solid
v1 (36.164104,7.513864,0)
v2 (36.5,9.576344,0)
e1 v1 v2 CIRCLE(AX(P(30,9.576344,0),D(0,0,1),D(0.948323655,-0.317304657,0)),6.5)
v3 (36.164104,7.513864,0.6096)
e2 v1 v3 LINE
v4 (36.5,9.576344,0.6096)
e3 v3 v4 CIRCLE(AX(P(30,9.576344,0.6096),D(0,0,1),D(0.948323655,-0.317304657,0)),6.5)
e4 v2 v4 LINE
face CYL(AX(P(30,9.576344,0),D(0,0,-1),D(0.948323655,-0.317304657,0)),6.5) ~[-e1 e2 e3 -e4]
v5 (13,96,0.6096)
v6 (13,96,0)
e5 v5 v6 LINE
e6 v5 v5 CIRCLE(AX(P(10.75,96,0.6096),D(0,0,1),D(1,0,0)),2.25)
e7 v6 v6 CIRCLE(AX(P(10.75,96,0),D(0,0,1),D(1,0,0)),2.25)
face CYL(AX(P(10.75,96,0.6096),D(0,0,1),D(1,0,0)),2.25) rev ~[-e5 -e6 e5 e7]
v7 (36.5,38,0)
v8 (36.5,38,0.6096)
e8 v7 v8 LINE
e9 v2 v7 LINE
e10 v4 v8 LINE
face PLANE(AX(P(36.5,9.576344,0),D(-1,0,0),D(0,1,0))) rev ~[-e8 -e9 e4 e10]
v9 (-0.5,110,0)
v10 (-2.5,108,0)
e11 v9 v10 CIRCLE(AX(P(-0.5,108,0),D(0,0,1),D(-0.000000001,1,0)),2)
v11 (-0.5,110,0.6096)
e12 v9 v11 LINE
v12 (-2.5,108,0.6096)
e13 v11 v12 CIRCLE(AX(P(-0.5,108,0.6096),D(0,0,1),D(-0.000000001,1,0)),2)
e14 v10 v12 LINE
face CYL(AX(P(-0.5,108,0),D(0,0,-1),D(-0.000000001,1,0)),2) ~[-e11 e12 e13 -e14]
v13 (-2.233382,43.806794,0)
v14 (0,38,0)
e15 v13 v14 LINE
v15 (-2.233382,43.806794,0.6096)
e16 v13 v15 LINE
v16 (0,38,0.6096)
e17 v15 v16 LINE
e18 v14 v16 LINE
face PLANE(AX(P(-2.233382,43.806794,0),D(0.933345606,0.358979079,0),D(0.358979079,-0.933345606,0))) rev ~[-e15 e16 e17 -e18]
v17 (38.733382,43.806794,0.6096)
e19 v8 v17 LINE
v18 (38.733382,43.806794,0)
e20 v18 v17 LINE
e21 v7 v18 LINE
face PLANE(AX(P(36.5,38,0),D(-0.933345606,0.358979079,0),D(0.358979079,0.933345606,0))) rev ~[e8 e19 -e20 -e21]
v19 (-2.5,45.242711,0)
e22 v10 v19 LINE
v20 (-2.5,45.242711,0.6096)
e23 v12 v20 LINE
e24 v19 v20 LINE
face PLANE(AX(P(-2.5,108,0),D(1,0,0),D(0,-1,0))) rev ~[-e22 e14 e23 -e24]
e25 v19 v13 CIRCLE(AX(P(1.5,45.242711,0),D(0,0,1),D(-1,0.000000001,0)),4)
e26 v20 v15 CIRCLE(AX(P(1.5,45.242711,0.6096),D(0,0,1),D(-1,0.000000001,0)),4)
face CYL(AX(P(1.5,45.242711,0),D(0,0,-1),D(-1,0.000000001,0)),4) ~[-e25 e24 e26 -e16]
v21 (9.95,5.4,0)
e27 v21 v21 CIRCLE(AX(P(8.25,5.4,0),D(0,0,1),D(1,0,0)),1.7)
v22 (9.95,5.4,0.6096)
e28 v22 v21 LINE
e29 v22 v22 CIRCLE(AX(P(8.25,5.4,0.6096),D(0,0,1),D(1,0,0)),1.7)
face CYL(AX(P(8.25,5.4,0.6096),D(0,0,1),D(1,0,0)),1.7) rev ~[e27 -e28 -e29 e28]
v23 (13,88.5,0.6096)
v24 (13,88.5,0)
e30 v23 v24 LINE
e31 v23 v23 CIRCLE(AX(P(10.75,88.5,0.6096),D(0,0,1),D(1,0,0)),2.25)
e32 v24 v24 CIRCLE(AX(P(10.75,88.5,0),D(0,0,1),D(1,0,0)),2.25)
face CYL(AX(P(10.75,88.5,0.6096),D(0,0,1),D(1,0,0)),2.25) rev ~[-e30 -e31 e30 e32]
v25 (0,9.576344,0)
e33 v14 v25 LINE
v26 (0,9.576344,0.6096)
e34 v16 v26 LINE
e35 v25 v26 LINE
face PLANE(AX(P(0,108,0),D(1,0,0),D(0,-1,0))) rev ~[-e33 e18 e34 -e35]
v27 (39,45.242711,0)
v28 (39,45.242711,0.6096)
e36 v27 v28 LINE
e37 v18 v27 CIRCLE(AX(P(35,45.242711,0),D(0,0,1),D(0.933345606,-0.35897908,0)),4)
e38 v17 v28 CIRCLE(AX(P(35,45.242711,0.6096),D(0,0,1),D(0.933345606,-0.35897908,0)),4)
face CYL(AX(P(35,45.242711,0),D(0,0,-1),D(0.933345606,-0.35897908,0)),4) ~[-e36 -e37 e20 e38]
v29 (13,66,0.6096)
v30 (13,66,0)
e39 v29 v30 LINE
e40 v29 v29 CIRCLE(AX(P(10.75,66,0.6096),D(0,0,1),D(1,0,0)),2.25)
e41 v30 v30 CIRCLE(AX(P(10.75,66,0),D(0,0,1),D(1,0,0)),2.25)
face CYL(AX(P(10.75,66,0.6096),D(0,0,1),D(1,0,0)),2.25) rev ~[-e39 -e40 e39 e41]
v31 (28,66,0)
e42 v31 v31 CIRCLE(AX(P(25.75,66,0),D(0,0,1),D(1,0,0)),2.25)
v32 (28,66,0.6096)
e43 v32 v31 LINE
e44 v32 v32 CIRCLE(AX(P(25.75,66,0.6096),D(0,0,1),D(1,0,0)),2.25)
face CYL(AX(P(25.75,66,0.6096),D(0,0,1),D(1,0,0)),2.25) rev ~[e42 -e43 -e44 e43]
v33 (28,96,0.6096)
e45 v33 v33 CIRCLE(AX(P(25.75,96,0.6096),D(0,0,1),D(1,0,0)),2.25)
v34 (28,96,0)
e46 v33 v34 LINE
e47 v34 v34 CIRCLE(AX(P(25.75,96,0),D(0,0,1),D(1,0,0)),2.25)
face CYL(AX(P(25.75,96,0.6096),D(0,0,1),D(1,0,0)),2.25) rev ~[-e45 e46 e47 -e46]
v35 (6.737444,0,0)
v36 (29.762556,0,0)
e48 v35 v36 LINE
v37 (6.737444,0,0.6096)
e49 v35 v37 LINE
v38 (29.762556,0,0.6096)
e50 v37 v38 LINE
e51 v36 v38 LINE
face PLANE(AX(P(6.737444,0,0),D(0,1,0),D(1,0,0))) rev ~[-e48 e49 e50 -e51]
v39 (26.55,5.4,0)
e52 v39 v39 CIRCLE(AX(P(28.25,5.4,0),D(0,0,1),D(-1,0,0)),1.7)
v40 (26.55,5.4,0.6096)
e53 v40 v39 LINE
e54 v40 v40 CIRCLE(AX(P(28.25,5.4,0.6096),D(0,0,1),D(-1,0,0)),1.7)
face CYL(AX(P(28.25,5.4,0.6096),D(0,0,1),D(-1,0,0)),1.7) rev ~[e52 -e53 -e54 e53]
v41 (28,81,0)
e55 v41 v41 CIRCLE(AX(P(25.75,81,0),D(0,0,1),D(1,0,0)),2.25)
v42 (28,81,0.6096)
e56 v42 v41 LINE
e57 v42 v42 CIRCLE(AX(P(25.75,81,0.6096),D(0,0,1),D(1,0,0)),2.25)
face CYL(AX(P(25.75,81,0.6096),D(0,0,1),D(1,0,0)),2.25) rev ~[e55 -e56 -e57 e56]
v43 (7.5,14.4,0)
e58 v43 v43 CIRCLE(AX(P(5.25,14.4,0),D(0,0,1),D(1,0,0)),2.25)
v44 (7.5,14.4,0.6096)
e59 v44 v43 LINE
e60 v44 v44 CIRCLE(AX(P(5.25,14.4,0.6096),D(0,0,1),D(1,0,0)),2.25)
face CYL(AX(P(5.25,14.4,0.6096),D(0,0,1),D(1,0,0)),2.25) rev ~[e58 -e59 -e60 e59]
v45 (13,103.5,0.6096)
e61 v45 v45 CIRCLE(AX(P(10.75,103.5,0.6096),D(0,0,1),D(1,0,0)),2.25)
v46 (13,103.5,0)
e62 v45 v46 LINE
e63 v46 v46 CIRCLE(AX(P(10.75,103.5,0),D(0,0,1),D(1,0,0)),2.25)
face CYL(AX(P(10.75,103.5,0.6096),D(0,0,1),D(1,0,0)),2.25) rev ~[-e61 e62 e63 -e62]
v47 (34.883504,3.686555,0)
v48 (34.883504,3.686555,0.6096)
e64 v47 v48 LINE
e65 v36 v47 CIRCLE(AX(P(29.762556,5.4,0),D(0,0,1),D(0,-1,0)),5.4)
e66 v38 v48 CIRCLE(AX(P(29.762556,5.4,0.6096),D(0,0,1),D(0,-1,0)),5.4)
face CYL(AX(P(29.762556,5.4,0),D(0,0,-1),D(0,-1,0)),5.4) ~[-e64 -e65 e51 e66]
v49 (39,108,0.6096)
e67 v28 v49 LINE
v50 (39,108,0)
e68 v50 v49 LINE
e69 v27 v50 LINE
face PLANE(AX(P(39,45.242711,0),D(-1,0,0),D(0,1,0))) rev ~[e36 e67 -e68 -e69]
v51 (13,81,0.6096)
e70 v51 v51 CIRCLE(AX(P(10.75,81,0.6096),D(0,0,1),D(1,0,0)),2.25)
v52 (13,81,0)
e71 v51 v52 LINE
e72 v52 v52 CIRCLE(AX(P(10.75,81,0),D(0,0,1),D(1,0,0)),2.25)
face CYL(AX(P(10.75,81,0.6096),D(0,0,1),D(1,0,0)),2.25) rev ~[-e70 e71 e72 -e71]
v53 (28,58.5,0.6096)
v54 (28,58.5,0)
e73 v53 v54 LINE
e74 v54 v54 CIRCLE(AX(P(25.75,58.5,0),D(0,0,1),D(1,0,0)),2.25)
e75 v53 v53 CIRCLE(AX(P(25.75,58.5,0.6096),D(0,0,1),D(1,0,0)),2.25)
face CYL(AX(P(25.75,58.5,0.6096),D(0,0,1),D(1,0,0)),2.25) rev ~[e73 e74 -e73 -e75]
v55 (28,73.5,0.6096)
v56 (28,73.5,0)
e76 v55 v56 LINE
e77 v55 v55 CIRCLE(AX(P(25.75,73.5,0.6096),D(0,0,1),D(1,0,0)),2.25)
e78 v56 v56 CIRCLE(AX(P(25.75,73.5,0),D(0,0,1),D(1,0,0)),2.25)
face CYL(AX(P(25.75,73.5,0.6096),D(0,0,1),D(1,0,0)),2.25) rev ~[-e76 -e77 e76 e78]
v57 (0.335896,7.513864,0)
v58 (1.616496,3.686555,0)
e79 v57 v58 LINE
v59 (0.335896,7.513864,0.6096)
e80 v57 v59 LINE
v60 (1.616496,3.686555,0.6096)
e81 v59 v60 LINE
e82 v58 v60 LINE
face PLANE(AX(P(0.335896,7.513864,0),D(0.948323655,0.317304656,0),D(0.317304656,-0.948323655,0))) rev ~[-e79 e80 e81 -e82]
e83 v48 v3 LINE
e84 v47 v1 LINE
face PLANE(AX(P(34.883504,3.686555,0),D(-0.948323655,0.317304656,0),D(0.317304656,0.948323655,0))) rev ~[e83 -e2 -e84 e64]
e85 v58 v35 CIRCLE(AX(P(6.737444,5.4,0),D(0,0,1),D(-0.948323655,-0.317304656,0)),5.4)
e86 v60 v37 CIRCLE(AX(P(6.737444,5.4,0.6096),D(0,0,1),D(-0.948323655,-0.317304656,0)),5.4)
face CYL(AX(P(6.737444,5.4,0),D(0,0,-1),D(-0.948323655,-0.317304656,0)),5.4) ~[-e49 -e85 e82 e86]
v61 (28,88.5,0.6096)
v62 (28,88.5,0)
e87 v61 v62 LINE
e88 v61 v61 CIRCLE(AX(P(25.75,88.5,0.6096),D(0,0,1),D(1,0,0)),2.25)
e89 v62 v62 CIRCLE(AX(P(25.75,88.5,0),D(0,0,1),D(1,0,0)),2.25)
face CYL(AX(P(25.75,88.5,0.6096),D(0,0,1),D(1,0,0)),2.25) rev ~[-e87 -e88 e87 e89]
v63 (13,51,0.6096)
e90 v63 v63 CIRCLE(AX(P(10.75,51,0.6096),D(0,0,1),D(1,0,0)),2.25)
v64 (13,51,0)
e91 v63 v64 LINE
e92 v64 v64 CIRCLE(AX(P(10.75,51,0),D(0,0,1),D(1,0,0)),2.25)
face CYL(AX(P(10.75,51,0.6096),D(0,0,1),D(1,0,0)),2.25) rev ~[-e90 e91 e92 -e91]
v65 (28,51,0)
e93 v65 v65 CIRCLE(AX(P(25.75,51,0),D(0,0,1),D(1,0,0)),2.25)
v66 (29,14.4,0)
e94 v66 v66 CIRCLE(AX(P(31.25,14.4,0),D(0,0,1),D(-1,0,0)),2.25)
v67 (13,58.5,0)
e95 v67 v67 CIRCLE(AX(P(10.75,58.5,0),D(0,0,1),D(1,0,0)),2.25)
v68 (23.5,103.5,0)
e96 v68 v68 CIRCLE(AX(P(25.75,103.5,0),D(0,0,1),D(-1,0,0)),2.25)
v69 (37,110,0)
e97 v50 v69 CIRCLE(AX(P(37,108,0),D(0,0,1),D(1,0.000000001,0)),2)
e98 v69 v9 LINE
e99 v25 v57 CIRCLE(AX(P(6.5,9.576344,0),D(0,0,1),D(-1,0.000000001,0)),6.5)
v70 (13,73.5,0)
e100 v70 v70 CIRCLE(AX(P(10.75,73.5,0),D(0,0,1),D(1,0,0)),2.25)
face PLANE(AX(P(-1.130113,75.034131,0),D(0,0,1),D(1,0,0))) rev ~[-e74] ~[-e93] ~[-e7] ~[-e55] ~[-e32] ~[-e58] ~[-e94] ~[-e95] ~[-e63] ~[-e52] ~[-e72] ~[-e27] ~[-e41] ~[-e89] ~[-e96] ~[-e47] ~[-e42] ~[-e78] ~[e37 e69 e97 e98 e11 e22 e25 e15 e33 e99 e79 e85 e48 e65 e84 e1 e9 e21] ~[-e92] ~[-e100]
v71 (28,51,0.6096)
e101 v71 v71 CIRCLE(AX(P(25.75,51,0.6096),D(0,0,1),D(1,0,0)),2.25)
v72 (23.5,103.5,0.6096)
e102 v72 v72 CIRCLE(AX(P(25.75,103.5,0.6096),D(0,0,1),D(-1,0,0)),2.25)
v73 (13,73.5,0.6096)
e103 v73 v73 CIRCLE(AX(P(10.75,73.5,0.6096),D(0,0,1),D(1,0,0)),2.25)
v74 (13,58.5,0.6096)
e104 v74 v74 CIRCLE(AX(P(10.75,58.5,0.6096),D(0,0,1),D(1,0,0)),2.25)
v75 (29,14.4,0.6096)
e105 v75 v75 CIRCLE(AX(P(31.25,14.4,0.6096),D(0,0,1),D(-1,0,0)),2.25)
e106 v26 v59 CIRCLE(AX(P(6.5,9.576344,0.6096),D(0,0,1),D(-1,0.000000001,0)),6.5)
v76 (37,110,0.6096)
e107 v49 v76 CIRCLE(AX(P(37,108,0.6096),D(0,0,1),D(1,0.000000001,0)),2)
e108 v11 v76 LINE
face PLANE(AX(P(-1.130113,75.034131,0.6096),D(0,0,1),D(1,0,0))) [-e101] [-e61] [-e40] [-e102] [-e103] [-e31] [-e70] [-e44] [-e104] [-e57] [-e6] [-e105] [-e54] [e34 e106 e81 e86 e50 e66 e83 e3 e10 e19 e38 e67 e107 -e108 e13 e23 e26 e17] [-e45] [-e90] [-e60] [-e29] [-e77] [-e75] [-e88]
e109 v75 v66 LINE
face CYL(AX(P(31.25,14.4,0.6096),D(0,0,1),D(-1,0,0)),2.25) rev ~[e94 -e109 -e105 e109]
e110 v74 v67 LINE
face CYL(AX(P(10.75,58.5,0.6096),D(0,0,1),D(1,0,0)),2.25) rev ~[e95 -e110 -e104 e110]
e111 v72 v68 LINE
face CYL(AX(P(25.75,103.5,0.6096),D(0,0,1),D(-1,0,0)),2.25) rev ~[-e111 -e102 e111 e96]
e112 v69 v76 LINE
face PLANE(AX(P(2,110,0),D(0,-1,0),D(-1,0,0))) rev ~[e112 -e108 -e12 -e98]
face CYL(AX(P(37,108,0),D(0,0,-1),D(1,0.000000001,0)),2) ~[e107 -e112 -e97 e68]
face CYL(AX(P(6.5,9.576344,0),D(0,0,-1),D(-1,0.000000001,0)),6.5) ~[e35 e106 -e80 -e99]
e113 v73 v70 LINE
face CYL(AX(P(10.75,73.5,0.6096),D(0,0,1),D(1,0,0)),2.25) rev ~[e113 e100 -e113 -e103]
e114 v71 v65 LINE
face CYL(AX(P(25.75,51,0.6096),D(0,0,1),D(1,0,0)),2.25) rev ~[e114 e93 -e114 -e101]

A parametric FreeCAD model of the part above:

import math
import FreeCAD as App
import Part
import Sketcher
from FreeCAD import Vector
Q = App.Units.Quantity

doc = App.newDocument("Part")
body = doc.addObject("PartDesign::Body", "Body")

sketch1 = body.newObject("Sketcher::SketchObject", "Sketch")
sketch1.AttachmentSupport = (doc.getObject("XY_Plane"), [""])
sketch1.MapMode = "FlatFace"
sketch1.addGeometry([
    Part.LineSegment(Vector(34.9, 3.7, 0), Vector(36.2, 7.5, 0)),
    Part.ArcOfCircle(Part.Circle(Vector(30, 9.6, 0), Vector(0, 0, 1), 6.5), math.radians(-18.5), math.radians(0)),
    Part.LineSegment(Vector(36.5, 9.6, 0), Vector(36.5, 108, 0)),
    Part.ArcOfCircle(Part.Circle(Vector(34.5, 108, 0), Vector(0, 0, 1), 2), math.radians(0), math.radians(90)),
    Part.LineSegment(Vector(34.5, 110, 0), Vector(2, 110, 0)),
    Part.ArcOfCircle(Part.Circle(Vector(2, 108, 0), Vector(0, 0, 1), 2), math.radians(90), math.radians(180)),
    Part.LineSegment(Vector(0, 108, 0), Vector(0, 9.6, 0)),
    Part.ArcOfCircle(Part.Circle(Vector(6.5, 9.6, 0), Vector(0, 0, 1), 6.5), math.radians(180), math.radians(198.5)),
    Part.LineSegment(Vector(0.3, 7.5, 0), Vector(1.6, 3.7, 0)),
    Part.ArcOfCircle(Part.Circle(Vector(6.7, 5.4, 0), Vector(0, 0, 1), 5.4), math.radians(-161), math.radians(-90)),
    Part.LineSegment(Vector(6.7, 0, 0), Vector(29.8, 0, 0)),
    Part.ArcOfCircle(Part.Circle(Vector(29.8, 5.4, 0), Vector(0, 0, 1), 5.4), math.radians(-90), math.radians(-19)),
], False)
sketch1.addConstraint([
    Sketcher.Constraint("Tangent", 0, 2, 1, 1),
    Sketcher.Constraint("Tangent", 1, 2, 2, 1),
    Sketcher.Constraint("Tangent", 2, 2, 3, 1),
    Sketcher.Constraint("Tangent", 3, 2, 4, 1),
    Sketcher.Constraint("Tangent", 4, 2, 5, 1),
    Sketcher.Constraint("Tangent", 5, 2, 6, 1),
    Sketcher.Constraint("Tangent", 6, 2, 7, 1),
    Sketcher.Constraint("Tangent", 7, 2, 8, 1),
    Sketcher.Constraint("Tangent", 8, 2, 9, 1),
    Sketcher.Constraint("Tangent", 9, 2, 10, 1),
    Sketcher.Constraint("Tangent", 10, 2, 11, 1),
    Sketcher.Constraint("Tangent", 11, 2, 0, 1),
    Sketcher.Constraint("Vertical", 2),
    Sketcher.Constraint("Horizontal", 4),
    Sketcher.Constraint("Vertical", 6),
    Sketcher.Constraint("Horizontal", 10),
    Sketcher.Constraint("Equal", 3, 5),
    Sketcher.Constraint("Equal", 1, 7),
    Sketcher.Constraint("Equal", 9, 11),
    Sketcher.Constraint("PointOnObject", 5, 2, -2),
    Sketcher.Constraint("PointOnObject", 9, 2, -1),
    Sketcher.Constraint("Horizontal", 1, 3, 7, 3),
    Sketcher.Constraint("Horizontal", 0, 2, 7, 2),
    Sketcher.Constraint("Radius", 3, 2.0),
    Sketcher.Constraint("Radius", 1, 6.5),
    Sketcher.Constraint("Radius", 9, 5.4),
    Sketcher.Constraint("DistanceX", 4, 2, 4, 1, 32.5),
    Sketcher.Constraint("DistanceY", -1, 1, 3, 3, 108.0),
    Sketcher.Constraint("Angle", 0, Q("71.5 deg")),
    Sketcher.Constraint("DistanceX", 7, 2, 8, 2, 1.2806),
])
pad1 = body.newObject("PartDesign::Pad", "Pad")
pad1.Profile = sketch1
pad1.Length = 0.6096

sketch2 = body.newObject("Sketcher::SketchObject", "Sketch001")
sketch2.AttachmentSupport = (doc.getObject("XY_Plane"), [""])
sketch2.MapMode = "FlatFace"
sketch2.AttachmentOffset = App.Placement(Vector(0, 0, 0.6096), App.Rotation())
sketch2.addGeometry([
    Part.Circle(Vector(8.2, 5.4, 0), Vector(0, 0, 1), 1.7),
    Part.Circle(Vector(5.2, 14.4, 0), Vector(0, 0, 1), 2.2),
    Part.Circle(Vector(10.8, 103.5, 0), Vector(0, 0, 1), 2.2),
    Part.Circle(Vector(28.2, 5.4, 0), Vector(0, 0, 1), 1.7),
    Part.Circle(Vector(31.2, 14.4, 0), Vector(0, 0, 1), 2.2),
    Part.Circle(Vector(25.8, 103.5, 0), Vector(0, 0, 1), 2.2),
], False)
sketch2.addConstraint([
    Sketcher.Constraint("Equal", 1, 2),
    Sketcher.Constraint("Equal", 0, 3),
    Sketcher.Constraint("Equal", 2, 4),
    Sketcher.Constraint("Equal", 4, 5),
    Sketcher.Constraint("Horizontal", 0, 3, 3, 3),
    Sketcher.Constraint("Horizontal", 1, 3, 4, 3),
    Sketcher.Constraint("Horizontal", 2, 3, 5, 3),
    Sketcher.Constraint("Diameter", 0, 3.4),
    Sketcher.Constraint("Diameter", 1, 4.5),
    Sketcher.Constraint("DistanceX", 1, 3, 0, 3, 3.0),
    Sketcher.Constraint("DistanceY", 0, 3, 1, 3, 9.0),
    Sketcher.Constraint("DistanceX", 0, 3, 3, 3, 20.0),
    Sketcher.Constraint("DistanceX", 3, 3, 4, 3, 3.0),
    Sketcher.Constraint("DistanceX", 2, 3, 5, 3, 15.0),
    Sketcher.Constraint("DistanceY", -1, 1, 0, 3, 5.4),
    Sketcher.Constraint("DistanceY", -1, 1, 2, 3, 103.5),
    Sketcher.Constraint("DistanceX", 1, 3, 2, 3, 5.5),
    Sketcher.Constraint("DistanceX", -1, 1, 0, 3, 8.25),
])
pocket1 = body.newObject("PartDesign::Pocket", "Pocket")
pocket1.Profile = sketch2
pocket1.Type = "ThroughAll"

sketch3 = body.newObject("Sketcher::SketchObject", "Sketch002")
sketch3.AttachmentSupport = (doc.getObject("XY_Plane"), [""])
sketch3.MapMode = "FlatFace"
sketch3.AttachmentOffset = App.Placement(Vector(0, 0, 0.6096), App.Rotation())
sketch3.addGeometry([
    Part.Circle(Vector(10.8, 96, 0), Vector(0, 0, 1), 2.2),
    Part.Circle(Vector(25.8, 96, 0), Vector(0, 0, 1), 2.2),
], False)
sketch3.addConstraint([
    Sketcher.Constraint("Equal", 0, 1),
    Sketcher.Constraint("Horizontal", 0, 3, 1, 3),
    Sketcher.Constraint("Diameter", 0, 4.5),
    Sketcher.Constraint("DistanceY", -1, 1, 0, 3, 96.0),
    Sketcher.Constraint("DistanceX", 0, 3, 1, 3, 15.0),
    Sketcher.Constraint("DistanceX", -1, 1, 0, 3, 10.75),
])
pocket2 = body.newObject("PartDesign::Pocket", "Pocket001")
pocket2.Profile = sketch3
pocket2.Type = "ThroughAll"
doc.recompute()

linearpattern = body.newObject("PartDesign::LinearPattern", "LinearPattern")
linearpattern.Originals = [pocket2]
linearpattern.Direction = (doc.getObject("Y_Axis"), [""])
linearpattern.Mode = "offset"
linearpattern.Offset = 7.5
linearpattern.Occurrences = 7
linearpattern.Reversed = True
body.Tip = linearpattern

sketch4 = body.newObject("Sketcher::SketchObject", "Sketch003")
sketch4.AttachmentSupport = (doc.getObject("XY_Plane"), [""])
sketch4.MapMode = "FlatFace"
sketch4.addGeometry([
    Part.ArcOfCircle(Part.Circle(Vector(2, 108, 0), Vector(0, 0, 1), 2), math.radians(90), math.radians(180)),
    Part.LineSegment(Vector(2, 110, 0), Vector(-0.5, 110, 0)),
    Part.ArcOfCircle(Part.Circle(Vector(-0.5, 108, 0), Vector(0, 0, 1), 2), math.radians(90), math.radians(180)),
    Part.LineSegment(Vector(-2.5, 108, 0), Vector(-2.5, 45.2, 0)),
    Part.ArcOfCircle(Part.Circle(Vector(1.5, 45.2, 0), Vector(0, 0, 1), 4), math.radians(180), math.radians(201)),
    Part.LineSegment(Vector(-2.2, 43.8, 0), Vector(0, 38, 0)),
    Part.LineSegment(Vector(0, 38, 0), Vector(0, 108, 0)),
    Part.LineSegment(Vector(36.5, 108, 0), Vector(36.5, 38, 0)),
    Part.LineSegment(Vector(36.5, 38, 0), Vector(38.7, 43.8, 0)),
    Part.ArcOfCircle(Part.Circle(Vector(35, 45.2, 0), Vector(0, 0, 1), 4), math.radians(-21), math.radians(0)),
    Part.LineSegment(Vector(39, 45.2, 0), Vector(39, 108, 0)),
    Part.ArcOfCircle(Part.Circle(Vector(37, 108, 0), Vector(0, 0, 1), 2), math.radians(0), math.radians(90)),
    Part.LineSegment(Vector(37, 110, 0), Vector(34.5, 110, 0)),
    Part.ArcOfCircle(Part.Circle(Vector(34.5, 108, 0), Vector(0, 0, 1), 2), math.radians(0), math.radians(90)),
], False)
sketch4.addConstraint([
    Sketcher.Constraint("Tangent", 0, 1, 1, 1),
    Sketcher.Constraint("Tangent", 1, 2, 2, 1),
    Sketcher.Constraint("Tangent", 2, 2, 3, 1),
    Sketcher.Constraint("Tangent", 3, 2, 4, 1),
    Sketcher.Constraint("Tangent", 4, 2, 5, 1),
    Sketcher.Constraint("Coincident", 5, 2, 6, 1),
    Sketcher.Constraint("Tangent", 6, 2, 0, 2),
    Sketcher.Constraint("Coincident", 7, 2, 8, 1),
    Sketcher.Constraint("Tangent", 8, 2, 9, 1),
    Sketcher.Constraint("Tangent", 9, 2, 10, 1),
    Sketcher.Constraint("Tangent", 10, 2, 11, 1),
    Sketcher.Constraint("Tangent", 11, 2, 12, 1),
    Sketcher.Constraint("Tangent", 12, 2, 13, 2),
    Sketcher.Constraint("Tangent", 13, 1, 7, 1),
    Sketcher.Constraint("Horizontal", 1),
    Sketcher.Constraint("Vertical", 3),
    Sketcher.Constraint("Vertical", 6),
    Sketcher.Constraint("Vertical", 7),
    Sketcher.Constraint("Vertical", 10),
    Sketcher.Constraint("Horizontal", 12),
    Sketcher.Constraint("Equal", 0, 2),
    Sketcher.Constraint("Equal", 4, 9),
    Sketcher.Constraint("Equal", 2, 11),
    Sketcher.Constraint("Equal", 11, 13),
    Sketcher.Constraint("PointOnObject", 5, 2, -2),
    Sketcher.Constraint("Horizontal", 4, 3, 9, 3),
    Sketcher.Constraint("Horizontal", 2, 3, 11, 3),
    Sketcher.Constraint("Horizontal", 5, 2, 7, 2),
    Sketcher.Constraint("Horizontal", 4, 2, 8, 2),
    Sketcher.Constraint("Radius", 0, 2.0),
    Sketcher.Constraint("Radius", 4, 4.0),
    Sketcher.Constraint("DistanceY", 6, 1, 6, 2, 70.0),
    Sketcher.Constraint("DistanceX", 1, 2, 1, 1, 2.5),
    Sketcher.Constraint("DistanceY", -1, 1, 0, 3, 108.0),
    Sketcher.Constraint("DistanceX", -1, 1, 9, 3, 35.0),
    Sketcher.Constraint("DistanceY", 3, 2, 3, 1, 62.757289),
])
pad2 = body.newObject("PartDesign::Pad", "Pad001")
pad2.Profile = sketch4
pad2.Length = 0.6096

doc.recompute()
